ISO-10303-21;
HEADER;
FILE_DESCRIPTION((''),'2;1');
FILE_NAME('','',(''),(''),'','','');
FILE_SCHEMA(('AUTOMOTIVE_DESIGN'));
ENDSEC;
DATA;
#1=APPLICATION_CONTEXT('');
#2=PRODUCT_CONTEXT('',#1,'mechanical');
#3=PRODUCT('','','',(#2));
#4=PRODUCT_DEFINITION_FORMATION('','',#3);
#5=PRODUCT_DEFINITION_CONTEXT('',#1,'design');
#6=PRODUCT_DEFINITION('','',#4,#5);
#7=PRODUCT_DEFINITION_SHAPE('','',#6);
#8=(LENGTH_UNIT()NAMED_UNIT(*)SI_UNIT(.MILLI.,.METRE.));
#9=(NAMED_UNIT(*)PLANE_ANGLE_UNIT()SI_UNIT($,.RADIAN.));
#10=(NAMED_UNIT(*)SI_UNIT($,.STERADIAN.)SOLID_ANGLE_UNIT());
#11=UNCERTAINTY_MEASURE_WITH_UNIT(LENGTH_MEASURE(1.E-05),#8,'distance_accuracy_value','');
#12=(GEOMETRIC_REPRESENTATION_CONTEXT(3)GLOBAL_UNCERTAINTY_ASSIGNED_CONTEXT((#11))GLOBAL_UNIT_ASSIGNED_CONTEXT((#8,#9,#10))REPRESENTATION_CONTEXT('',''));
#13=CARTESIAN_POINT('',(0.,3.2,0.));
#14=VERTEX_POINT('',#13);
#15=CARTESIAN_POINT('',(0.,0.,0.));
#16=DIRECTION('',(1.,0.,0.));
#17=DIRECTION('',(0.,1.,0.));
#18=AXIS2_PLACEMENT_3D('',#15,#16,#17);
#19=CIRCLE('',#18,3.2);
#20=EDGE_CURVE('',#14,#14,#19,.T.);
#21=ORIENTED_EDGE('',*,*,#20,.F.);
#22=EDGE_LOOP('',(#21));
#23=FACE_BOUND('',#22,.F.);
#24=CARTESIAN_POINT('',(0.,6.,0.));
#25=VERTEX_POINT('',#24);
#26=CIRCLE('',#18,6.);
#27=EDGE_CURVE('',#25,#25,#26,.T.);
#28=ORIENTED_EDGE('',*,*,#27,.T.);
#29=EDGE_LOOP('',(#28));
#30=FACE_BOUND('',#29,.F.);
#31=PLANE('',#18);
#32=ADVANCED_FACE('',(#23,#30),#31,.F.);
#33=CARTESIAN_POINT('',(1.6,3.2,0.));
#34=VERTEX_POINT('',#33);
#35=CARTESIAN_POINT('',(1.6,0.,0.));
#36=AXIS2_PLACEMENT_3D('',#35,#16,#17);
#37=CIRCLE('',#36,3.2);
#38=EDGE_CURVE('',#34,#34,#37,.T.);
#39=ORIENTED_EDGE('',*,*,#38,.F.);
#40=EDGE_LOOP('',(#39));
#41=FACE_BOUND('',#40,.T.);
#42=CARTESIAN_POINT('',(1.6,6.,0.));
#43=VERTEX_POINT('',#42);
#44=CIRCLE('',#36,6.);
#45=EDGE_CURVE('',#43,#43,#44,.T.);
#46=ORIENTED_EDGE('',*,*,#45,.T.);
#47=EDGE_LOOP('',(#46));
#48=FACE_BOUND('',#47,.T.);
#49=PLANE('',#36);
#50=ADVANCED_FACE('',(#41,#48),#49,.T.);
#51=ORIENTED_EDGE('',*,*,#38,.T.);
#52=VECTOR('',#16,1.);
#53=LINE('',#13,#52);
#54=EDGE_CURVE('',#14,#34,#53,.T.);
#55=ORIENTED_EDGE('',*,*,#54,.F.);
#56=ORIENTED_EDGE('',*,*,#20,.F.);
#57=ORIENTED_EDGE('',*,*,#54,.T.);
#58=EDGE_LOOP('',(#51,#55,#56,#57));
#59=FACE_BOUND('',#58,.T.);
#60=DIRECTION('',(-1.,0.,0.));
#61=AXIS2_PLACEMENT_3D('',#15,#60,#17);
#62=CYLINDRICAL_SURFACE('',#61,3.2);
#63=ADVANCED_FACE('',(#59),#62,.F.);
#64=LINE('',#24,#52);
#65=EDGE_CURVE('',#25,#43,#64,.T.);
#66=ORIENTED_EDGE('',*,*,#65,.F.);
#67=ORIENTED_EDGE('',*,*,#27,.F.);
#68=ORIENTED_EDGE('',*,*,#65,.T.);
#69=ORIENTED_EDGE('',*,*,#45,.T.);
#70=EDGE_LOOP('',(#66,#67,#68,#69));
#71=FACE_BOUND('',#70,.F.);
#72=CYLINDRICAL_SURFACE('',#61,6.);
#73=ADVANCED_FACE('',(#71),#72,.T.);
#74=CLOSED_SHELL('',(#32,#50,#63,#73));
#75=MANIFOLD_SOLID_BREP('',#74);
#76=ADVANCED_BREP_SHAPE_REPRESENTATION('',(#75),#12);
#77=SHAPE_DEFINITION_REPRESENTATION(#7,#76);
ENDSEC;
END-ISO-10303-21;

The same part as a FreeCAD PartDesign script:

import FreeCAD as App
import Part
import Sketcher
from FreeCAD import Vector
Q = App.Units.Quantity

doc = App.newDocument("Part")
body = doc.addObject("PartDesign::Body", "Body")

# Sketch on YZ plane
sketch1 = body.newObject("Sketcher::SketchObject", "Sketch")
sketch1.AttachmentSupport = (doc.getObject("YZ_Plane"), [""])
sketch1.MapMode = "FlatFace"
sketch1.addGeometry([
    Part.Circle(Vector(0, 0, 0), Vector(0, 0, 1), 6),
    Part.Circle(Vector(0, 0, 0), Vector(0, 0, 1), 3.2),
], False)
sketch1.addConstraint([
    Sketcher.Constraint("Coincident", 0, 3, -1, 1),
    Sketcher.Constraint("Coincident", 1, 3, -1, 1),
    Sketcher.Constraint("Diameter", 0, Q("12 mm")),
    Sketcher.Constraint("Diameter", 1, Q("6.4 mm")),
])
pad1 = body.newObject("PartDesign::Pad", "Pad")
pad1.Profile = sketch1
pad1.Length = 1.6

doc.recompute()
